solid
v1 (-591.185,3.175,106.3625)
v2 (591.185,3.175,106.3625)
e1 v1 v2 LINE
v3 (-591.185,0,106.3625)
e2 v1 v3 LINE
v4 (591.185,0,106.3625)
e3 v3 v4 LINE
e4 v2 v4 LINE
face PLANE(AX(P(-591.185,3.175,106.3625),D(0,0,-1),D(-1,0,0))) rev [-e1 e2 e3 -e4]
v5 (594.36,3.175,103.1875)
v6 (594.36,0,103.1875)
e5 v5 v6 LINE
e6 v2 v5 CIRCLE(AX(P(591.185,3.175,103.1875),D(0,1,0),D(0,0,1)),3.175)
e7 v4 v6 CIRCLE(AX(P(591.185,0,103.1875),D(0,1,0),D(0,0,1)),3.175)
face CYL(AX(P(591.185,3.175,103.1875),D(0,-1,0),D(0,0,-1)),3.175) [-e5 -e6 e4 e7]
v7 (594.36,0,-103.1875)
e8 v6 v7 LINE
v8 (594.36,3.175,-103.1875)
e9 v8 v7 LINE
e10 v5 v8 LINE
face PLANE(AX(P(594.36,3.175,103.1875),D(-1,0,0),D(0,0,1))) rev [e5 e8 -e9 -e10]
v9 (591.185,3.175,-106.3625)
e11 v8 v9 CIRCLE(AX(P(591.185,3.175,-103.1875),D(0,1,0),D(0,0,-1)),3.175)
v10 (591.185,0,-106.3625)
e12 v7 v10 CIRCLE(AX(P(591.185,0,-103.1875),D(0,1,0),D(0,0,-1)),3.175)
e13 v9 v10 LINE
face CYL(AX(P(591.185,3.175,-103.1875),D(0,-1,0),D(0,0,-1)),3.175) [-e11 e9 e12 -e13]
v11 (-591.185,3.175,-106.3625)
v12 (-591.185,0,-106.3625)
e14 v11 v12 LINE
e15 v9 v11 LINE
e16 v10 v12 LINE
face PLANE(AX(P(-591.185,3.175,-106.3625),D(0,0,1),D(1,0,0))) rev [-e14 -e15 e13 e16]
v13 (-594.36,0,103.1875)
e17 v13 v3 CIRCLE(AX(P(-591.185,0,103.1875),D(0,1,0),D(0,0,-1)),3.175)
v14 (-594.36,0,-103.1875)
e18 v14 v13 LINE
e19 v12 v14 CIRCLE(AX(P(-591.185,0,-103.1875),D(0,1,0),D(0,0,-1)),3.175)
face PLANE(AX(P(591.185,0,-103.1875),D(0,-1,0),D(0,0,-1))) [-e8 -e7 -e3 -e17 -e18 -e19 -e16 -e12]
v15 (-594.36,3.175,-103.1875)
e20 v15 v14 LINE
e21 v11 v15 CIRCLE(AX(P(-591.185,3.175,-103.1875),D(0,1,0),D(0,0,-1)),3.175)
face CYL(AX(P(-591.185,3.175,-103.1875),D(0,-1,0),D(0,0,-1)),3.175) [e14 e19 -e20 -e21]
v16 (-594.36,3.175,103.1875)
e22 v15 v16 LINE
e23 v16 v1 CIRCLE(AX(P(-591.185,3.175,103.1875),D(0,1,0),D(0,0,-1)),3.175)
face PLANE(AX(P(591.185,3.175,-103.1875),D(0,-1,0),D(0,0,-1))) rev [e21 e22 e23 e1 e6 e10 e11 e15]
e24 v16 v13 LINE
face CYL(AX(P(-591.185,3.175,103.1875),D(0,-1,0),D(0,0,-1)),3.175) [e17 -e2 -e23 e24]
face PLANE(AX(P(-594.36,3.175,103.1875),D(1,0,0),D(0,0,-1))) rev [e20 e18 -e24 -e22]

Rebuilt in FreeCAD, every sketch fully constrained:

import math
import FreeCAD as App
import Part
import Sketcher
Q = App.Units.Quantity

doc = App.newDocument("Part")
params = doc.addObject("Spreadsheet::Sheet", "Params")
for row, (alias, value) in enumerate([
    ("sketch1_radius", "0.125 in"),
    ("sketch1_width", "46.55 in"),
    ("sketch1_height", "8.125 in"),
    ("pad1_length", "0.125 in"),
], start=1):
    params.set(f"A{row}", alias)
    params.set(f"B{row}", "=" + value)
    params.setAlias(f"B{row}", alias)

body = doc.addObject("PartDesign::Body", "Body")

# Sketch on XZ plane
sketch1 = body.newObject("Sketcher::SketchObject", "Sketch")
sketch1.AttachmentSupport = (doc.getObject("XZ_Plane"), [""])
sketch1.MapMode = "FlatFace"
sketch1.addGeometry(Part.LineSegment(App.Vector(-591.2, 106.4, 0), App.Vector(591.2, 106.4, 0)), False)
sketch1.addGeometry(Part.ArcOfCircle(Part.Circle(App.Vector(591.2, 103.2, 0), App.Vector(0, 0, 1), 3.2), math.radians(0), math.radians(90)), False)
sketch1.addGeometry(Part.LineSegment(App.Vector(594.4, 103.2, 0), App.Vector(594.4, -103.2, 0)), False)
sketch1.addGeometry(Part.ArcOfCircle(Part.Circle(App.Vector(591.2, -103.2, 0), App.Vector(0, 0, 1), 3.2), math.radians(-90), math.radians(0)), False)
sketch1.addGeometry(Part.LineSegment(App.Vector(591.2, -106.4, 0), App.Vector(-591.2, -106.4, 0)), False)
sketch1.addGeometry(Part.ArcOfCircle(Part.Circle(App.Vector(-591.2, -103.2, 0), App.Vector(0, 0, 1), 3.2), math.radians(-180), math.radians(-90)), False)
sketch1.addGeometry(Part.LineSegment(App.Vector(-594.4, -103.2, 0), App.Vector(-594.4, 103.2, 0)), False)
sketch1.addGeometry(Part.ArcOfCircle(Part.Circle(App.Vector(-591.2, 103.2, 0), App.Vector(0, 0, 1), 3.2), math.radians(90), math.radians(180)), False)
sketch1.addConstraint(Sketcher.Constraint("Tangent", 0, 2, 1, 2))
sketch1.addConstraint(Sketcher.Constraint("Tangent", 1, 1, 2, 1))
sketch1.addConstraint(Sketcher.Constraint("Tangent", 2, 2, 3, 2))
sketch1.addConstraint(Sketcher.Constraint("Tangent", 3, 1, 4, 1))
sketch1.addConstraint(Sketcher.Constraint("Tangent", 4, 2, 5, 2))
sketch1.addConstraint(Sketcher.Constraint("Tangent", 5, 1, 6, 1))
sketch1.addConstraint(Sketcher.Constraint("Tangent", 6, 2, 7, 2))
sketch1.addConstraint(Sketcher.Constraint("Tangent", 7, 1, 0, 1))
sketch1.addConstraint(Sketcher.Constraint("Horizontal", 0))
sketch1.addConstraint(Sketcher.Constraint("Vertical", 2))
sketch1.addConstraint(Sketcher.Constraint("Horizontal", 4))
sketch1.addConstraint(Sketcher.Constraint("Vertical", 6))
sketch1.addConstraint(Sketcher.Constraint("Equal", 1, 3))
sketch1.addConstraint(Sketcher.Constraint("Equal", 3, 5))
sketch1.addConstraint(Sketcher.Constraint("Equal", 5, 7))
sketch1.addConstraint(Sketcher.Constraint("Symmetric", 1, 3, 5, 3, -1, 1))
sketch1.addConstraint(Sketcher.Constraint("Radius", 1, Q("0.125 in")))
sketch1.addConstraint(Sketcher.Constraint("DistanceX", 0, 1, 0, 2, Q("46.55 in")))
sketch1.addConstraint(Sketcher.Constraint("DistanceY", 2, 2, 2, 1, Q("8.125 in")))
sketch1.setExpression("Constraints[16]", "Params.sketch1_radius")
sketch1.setExpression("Constraints[17]", "Params.sketch1_width")
sketch1.setExpression("Constraints[18]", "Params.sketch1_height")
pad1 = body.newObject("PartDesign::Pad", "Pad")
pad1.Profile = sketch1
pad1.setExpression("Length", "Params.pad1_length")
pad1.Reversed = True

doc.recompute()
